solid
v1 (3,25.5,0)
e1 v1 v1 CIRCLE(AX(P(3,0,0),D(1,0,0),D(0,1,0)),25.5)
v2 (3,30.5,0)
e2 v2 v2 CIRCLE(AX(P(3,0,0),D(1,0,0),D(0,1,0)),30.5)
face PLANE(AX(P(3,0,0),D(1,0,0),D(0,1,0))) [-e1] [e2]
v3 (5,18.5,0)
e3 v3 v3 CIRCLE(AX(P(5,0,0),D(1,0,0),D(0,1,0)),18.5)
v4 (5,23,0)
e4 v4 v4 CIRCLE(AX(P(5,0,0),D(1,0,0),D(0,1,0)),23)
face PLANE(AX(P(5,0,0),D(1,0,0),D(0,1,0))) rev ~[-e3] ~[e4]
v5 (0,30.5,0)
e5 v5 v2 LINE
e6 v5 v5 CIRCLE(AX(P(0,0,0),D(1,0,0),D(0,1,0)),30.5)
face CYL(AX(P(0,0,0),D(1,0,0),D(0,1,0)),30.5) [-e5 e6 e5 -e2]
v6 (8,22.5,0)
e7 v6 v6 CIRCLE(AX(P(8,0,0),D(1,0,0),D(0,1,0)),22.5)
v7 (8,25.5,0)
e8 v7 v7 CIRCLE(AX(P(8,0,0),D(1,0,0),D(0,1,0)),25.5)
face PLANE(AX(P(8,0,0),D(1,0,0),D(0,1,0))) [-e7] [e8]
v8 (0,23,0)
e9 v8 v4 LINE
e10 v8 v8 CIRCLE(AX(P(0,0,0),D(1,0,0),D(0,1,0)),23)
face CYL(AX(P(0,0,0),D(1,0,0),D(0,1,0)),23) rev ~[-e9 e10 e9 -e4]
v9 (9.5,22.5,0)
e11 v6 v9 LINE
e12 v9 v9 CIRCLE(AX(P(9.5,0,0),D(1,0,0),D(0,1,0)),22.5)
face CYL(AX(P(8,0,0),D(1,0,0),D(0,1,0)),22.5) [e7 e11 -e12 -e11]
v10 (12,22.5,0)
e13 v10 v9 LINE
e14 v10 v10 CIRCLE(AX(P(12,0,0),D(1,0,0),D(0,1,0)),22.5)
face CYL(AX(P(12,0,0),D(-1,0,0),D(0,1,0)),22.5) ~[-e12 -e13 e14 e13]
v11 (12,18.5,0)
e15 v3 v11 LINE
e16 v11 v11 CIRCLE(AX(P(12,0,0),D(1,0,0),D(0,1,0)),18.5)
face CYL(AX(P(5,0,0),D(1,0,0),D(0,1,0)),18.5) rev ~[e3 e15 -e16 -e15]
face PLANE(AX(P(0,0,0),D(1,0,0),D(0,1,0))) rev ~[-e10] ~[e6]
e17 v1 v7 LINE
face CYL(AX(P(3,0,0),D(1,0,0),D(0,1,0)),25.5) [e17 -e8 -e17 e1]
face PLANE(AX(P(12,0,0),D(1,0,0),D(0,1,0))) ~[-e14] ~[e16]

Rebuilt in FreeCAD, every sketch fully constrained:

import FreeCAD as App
import Part
import Sketcher

V = App.Vector
Q = App.Units.Quantity

doc = App.newDocument("Part")
body = doc.addObject("PartDesign::Body", "Body")

# Sketch on XY plane
sketch1 = body.newObject("Sketcher::SketchObject", "Sketch")
sketch1.AttachmentSupport = (doc.getObject("XY_Plane"), [""])
sketch1.MapMode = "FlatFace"
sketch1.addGeometry([
    Part.LineSegment(V(0, 30.5, 0), V(0, 23, 0)),  # 0
    Part.LineSegment(V(0, 23, 0), V(5, 23, 0)),  # 1
    Part.LineSegment(V(5, 23, 0), V(5, 18.5, 0)),  # 2
    Part.LineSegment(V(5, 18.5, 0), V(12, 18.5, 0)),  # 3
    Part.LineSegment(V(12, 18.5, 0), V(12, 22.5, 0)),  # 4
    Part.LineSegment(V(12, 22.5, 0), V(8, 22.5, 0)),  # 5
    Part.LineSegment(V(8, 22.5, 0), V(8, 25.5, 0)),  # 6
    Part.LineSegment(V(8, 25.5, 0), V(3, 25.5, 0)),  # 7
    Part.LineSegment(V(3, 25.5, 0), V(3, 30.5, 0)),  # 8
    Part.LineSegment(V(3, 30.5, 0), V(0, 30.5, 0)),  # 9
], False)
sketch1.addConstraint([
    Sketcher.Constraint("Coincident", 0, 2, 1, 1),
    Sketcher.Constraint("Coincident", 1, 2, 2, 1),
    Sketcher.Constraint("Coincident", 2, 2, 3, 1),
    Sketcher.Constraint("Coincident", 3, 2, 4, 1),
    Sketcher.Constraint("Coincident", 4, 2, 5, 1),
    Sketcher.Constraint("Coincident", 5, 2, 6, 1),
    Sketcher.Constraint("Coincident", 6, 2, 7, 1),
    Sketcher.Constraint("Coincident", 7, 2, 8, 1),
    Sketcher.Constraint("Coincident", 8, 2, 9, 1),
    Sketcher.Constraint("Coincident", 9, 2, 0, 1),
    Sketcher.Constraint("Vertical", 0),
    Sketcher.Constraint("Horizontal", 1),
    Sketcher.Constraint("Vertical", 2),
    Sketcher.Constraint("Horizontal", 3),
    Sketcher.Constraint("Vertical", 4),
    Sketcher.Constraint("Horizontal", 5),
    Sketcher.Constraint("Vertical", 6),
    Sketcher.Constraint("Horizontal", 7),
    Sketcher.Constraint("Vertical", 8),
    Sketcher.Constraint("Horizontal", 9),
    Sketcher.Constraint("PointOnObject", 0, 2, -2),
    Sketcher.Constraint("Equal", 1, 7),
    Sketcher.Constraint("Equal", 5, 4),
    Sketcher.Constraint("Equal", 9, 6),
    Sketcher.Constraint("Equal", 7, 8),
    Sketcher.Constraint("DistanceX", 1, 1, 1, 2, Q("5 mm")),
    Sketcher.Constraint("DistanceX", 3, 1, 3, 2, Q("7 mm")),
    Sketcher.Constraint("DistanceX", 9, 2, 9, 1, Q("3 mm")),
    Sketcher.Constraint("DistanceY", 2, 2, 2, 1, Q("4.5 mm")),
    Sketcher.Constraint("DistanceY", -1, 1, 0, 2, Q("23 mm")),
])
revolution = body.newObject("PartDesign::Revolution", "Revolution")
revolution.Profile = sketch1
revolution.ReferenceAxis = (sketch1, ["H_Axis"])
revolution.Angle = 360

doc.recompute()
